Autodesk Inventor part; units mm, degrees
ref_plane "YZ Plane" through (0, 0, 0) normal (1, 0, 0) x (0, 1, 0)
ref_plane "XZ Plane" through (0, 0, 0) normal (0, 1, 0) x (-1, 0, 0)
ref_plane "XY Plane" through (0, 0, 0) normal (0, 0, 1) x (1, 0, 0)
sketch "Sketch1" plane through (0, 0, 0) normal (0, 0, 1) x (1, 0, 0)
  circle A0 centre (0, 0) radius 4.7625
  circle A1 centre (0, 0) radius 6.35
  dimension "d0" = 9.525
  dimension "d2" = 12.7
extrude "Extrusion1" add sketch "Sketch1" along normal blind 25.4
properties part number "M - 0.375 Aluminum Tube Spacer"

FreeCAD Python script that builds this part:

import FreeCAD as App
import Part
import Sketcher
Q = App.Units.Quantity

doc = App.newDocument("Part")
body = doc.addObject("PartDesign::Body", "Body")

# Sketch on XY plane
sketch1 = body.newObject("Sketcher::SketchObject", "Sketch")
sketch1.AttachmentSupport = (doc.getObject("XY_Plane"), [""])
sketch1.MapMode = "FlatFace"
sketch1.addGeometry(Part.Circle(App.Vector(0, 0, 0), App.Vector(0, 0, 1), 6.3), False)
sketch1.addGeometry(Part.Circle(App.Vector(0, 0, 0), App.Vector(0, 0, 1), 4.8), False)
sketch1.addConstraint(Sketcher.Constraint("Coincident", 0, 3, -1, 1))
sketch1.addConstraint(Sketcher.Constraint("Coincident", 1, 3, -1, 1))
sketch1.addConstraint(Sketcher.Constraint("Diameter", 0, Q("0.5 in")))
sketch1.addConstraint(Sketcher.Constraint("Diameter", 1, Q("0.375 in")))
pad1 = body.newObject("PartDesign::Pad", "Pad")
pad1.Profile = sketch1
pad1.Length = Q("1 in")

doc.recompute()
